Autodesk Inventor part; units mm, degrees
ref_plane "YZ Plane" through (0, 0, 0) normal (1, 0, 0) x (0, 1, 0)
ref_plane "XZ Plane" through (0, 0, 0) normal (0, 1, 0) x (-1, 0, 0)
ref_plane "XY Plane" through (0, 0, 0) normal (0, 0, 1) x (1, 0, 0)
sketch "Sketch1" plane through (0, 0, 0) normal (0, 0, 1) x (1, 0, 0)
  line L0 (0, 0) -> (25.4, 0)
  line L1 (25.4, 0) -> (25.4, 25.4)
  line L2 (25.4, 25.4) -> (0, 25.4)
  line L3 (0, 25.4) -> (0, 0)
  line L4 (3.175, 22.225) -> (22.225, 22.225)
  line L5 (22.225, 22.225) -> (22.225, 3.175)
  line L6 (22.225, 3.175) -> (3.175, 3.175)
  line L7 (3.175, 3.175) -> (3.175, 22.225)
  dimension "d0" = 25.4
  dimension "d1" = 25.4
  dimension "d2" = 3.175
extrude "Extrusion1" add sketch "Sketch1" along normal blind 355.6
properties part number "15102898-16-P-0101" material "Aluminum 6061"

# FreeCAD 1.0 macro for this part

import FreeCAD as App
import Part
import Sketcher
from FreeCAD import Vector
Q = App.Units.Quantity


def add_polygon(sketch, points):
    """Adds a closed chain of lines whose ends are joined by coincident constraints."""
    first, n = sketch.GeometryCount, len(points)
    for a, b in zip(points, points[1:] + points[:1]):
        sketch.addGeometry(Part.LineSegment(App.Vector(*a, 0), App.Vector(*b, 0)), False)
    for i in range(n):
        sketch.addConstraint(Sketcher.Constraint("Coincident", first + i, 2, first + (i + 1) % n, 1))

doc = App.newDocument("Part")
body = doc.addObject("PartDesign::Body", "Body")

# Sketch on XY plane
sketch1 = body.newObject("Sketcher::SketchObject", "Sketch")
sketch1.AttachmentSupport = (doc.getObject("XY_Plane"), [""])
sketch1.MapMode = "FlatFace"
add_polygon(sketch1, [(0, 25.4), (0, 0), (25.4, 0), (25.4, 25.4)])  # lines 0-3
add_polygon(sketch1, [(3.175, 3.175), (3.175, 22.225), (22.225, 22.225), (22.225, 3.175)])  # lines 4-7
sketch1.addConstraint(Sketcher.Constraint("Vertical", 0))
sketch1.addConstraint(Sketcher.Constraint("Horizontal", 1))
sketch1.addConstraint(Sketcher.Constraint("Vertical", 2))
sketch1.addConstraint(Sketcher.Constraint("Horizontal", 3))
sketch1.addConstraint(Sketcher.Constraint("Vertical", 4))
sketch1.addConstraint(Sketcher.Constraint("Horizontal", 5))
sketch1.addConstraint(Sketcher.Constraint("Vertical", 6))
sketch1.addConstraint(Sketcher.Constraint("Horizontal", 7))
sketch1.addConstraint(Sketcher.Constraint("Coincident", 0, 2, -1, 1))
sketch1.addConstraint(Sketcher.Constraint("Equal", 3, 0))
sketch1.addConstraint(Sketcher.Constraint("Equal", 7, 4))
sketch1.addConstraint(Sketcher.Constraint("DistanceX", 1, 1, 1, 2, Q("1 in")))
sketch1.addConstraint(Sketcher.Constraint("DistanceX", -1, 1, 4, 2, Q("0.125 in")))
sketch1.addConstraint(Sketcher.Constraint("DistanceY", -1, 1, 6, 2, Q("0.125 in")))
sketch1.addConstraint(Sketcher.Constraint("DistanceY", 4, 2, 3, 2, Q("0.125 in")))
pad1 = body.newObject("PartDesign::Pad", "Pad")
pad1.Profile = sketch1
pad1.Length = Q("14 in")

doc.recompute()
